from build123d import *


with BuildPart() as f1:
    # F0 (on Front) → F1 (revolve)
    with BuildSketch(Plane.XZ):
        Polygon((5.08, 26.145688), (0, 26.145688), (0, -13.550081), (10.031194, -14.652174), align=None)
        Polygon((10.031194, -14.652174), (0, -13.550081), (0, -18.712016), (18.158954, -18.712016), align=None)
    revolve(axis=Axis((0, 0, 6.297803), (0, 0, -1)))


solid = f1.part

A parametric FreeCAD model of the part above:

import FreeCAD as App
import Part
import Sketcher
from FreeCAD import Vector
Q = App.Units.Quantity


def add_polygon(sketch, points):
    """Adds a closed chain of lines whose ends are joined by coincident constraints."""
    first, n = sketch.GeometryCount, len(points)
    for a, b in zip(points, points[1:] + points[:1]):
        sketch.addGeometry(Part.LineSegment(App.Vector(*a, 0), App.Vector(*b, 0)), False)
    for i in range(n):
        sketch.addConstraint(Sketcher.Constraint("Coincident", first + i, 2, first + (i + 1) % n, 1))

doc = App.newDocument("Part")
body = doc.addObject("PartDesign::Body", "Body")

# Sketch on XZ plane
sketch1 = body.newObject("Sketcher::SketchObject", "Sketch")
sketch1.AttachmentSupport = (doc.getObject("XZ_Plane"), [""])
sketch1.MapMode = "FlatFace"
add_polygon(sketch1, [(5, 26), (0, 26), (0, -19), (18, -19), (10, -15)])  # lines 0-4
sketch1.addConstraint([
    Sketcher.Constraint("Horizontal", 0),
    Sketcher.Constraint("Vertical", 1),
    Sketcher.Constraint("Horizontal", 2),
    Sketcher.Constraint("PointOnObject", 0, 2, -2),
    Sketcher.Constraint("DistanceX", 0, 2, 0, 1, Q("0.2 in")),
    Sketcher.Constraint("Distance", 4, Q("1.618 in")),
    Sketcher.Constraint("DistanceX", 2, 1, 2, 2, Q("18.158954 mm")),
    Sketcher.Constraint("DistanceY", 1, 2, 1, 1, Q("44.857704 mm")),
    Sketcher.Constraint("DistanceY", -1, 1, 0, 2, Q("26.145688 mm")),
    Sketcher.Constraint("DistanceX", 3, 2, 2, 2, Q("8.12776 mm")),
])
revolution = body.newObject("PartDesign::Revolution", "Revolution")
revolution.Profile = sketch1
revolution.ReferenceAxis = (sketch1, ["V_Axis"])
revolution.Angle = 360

doc.recompute()
